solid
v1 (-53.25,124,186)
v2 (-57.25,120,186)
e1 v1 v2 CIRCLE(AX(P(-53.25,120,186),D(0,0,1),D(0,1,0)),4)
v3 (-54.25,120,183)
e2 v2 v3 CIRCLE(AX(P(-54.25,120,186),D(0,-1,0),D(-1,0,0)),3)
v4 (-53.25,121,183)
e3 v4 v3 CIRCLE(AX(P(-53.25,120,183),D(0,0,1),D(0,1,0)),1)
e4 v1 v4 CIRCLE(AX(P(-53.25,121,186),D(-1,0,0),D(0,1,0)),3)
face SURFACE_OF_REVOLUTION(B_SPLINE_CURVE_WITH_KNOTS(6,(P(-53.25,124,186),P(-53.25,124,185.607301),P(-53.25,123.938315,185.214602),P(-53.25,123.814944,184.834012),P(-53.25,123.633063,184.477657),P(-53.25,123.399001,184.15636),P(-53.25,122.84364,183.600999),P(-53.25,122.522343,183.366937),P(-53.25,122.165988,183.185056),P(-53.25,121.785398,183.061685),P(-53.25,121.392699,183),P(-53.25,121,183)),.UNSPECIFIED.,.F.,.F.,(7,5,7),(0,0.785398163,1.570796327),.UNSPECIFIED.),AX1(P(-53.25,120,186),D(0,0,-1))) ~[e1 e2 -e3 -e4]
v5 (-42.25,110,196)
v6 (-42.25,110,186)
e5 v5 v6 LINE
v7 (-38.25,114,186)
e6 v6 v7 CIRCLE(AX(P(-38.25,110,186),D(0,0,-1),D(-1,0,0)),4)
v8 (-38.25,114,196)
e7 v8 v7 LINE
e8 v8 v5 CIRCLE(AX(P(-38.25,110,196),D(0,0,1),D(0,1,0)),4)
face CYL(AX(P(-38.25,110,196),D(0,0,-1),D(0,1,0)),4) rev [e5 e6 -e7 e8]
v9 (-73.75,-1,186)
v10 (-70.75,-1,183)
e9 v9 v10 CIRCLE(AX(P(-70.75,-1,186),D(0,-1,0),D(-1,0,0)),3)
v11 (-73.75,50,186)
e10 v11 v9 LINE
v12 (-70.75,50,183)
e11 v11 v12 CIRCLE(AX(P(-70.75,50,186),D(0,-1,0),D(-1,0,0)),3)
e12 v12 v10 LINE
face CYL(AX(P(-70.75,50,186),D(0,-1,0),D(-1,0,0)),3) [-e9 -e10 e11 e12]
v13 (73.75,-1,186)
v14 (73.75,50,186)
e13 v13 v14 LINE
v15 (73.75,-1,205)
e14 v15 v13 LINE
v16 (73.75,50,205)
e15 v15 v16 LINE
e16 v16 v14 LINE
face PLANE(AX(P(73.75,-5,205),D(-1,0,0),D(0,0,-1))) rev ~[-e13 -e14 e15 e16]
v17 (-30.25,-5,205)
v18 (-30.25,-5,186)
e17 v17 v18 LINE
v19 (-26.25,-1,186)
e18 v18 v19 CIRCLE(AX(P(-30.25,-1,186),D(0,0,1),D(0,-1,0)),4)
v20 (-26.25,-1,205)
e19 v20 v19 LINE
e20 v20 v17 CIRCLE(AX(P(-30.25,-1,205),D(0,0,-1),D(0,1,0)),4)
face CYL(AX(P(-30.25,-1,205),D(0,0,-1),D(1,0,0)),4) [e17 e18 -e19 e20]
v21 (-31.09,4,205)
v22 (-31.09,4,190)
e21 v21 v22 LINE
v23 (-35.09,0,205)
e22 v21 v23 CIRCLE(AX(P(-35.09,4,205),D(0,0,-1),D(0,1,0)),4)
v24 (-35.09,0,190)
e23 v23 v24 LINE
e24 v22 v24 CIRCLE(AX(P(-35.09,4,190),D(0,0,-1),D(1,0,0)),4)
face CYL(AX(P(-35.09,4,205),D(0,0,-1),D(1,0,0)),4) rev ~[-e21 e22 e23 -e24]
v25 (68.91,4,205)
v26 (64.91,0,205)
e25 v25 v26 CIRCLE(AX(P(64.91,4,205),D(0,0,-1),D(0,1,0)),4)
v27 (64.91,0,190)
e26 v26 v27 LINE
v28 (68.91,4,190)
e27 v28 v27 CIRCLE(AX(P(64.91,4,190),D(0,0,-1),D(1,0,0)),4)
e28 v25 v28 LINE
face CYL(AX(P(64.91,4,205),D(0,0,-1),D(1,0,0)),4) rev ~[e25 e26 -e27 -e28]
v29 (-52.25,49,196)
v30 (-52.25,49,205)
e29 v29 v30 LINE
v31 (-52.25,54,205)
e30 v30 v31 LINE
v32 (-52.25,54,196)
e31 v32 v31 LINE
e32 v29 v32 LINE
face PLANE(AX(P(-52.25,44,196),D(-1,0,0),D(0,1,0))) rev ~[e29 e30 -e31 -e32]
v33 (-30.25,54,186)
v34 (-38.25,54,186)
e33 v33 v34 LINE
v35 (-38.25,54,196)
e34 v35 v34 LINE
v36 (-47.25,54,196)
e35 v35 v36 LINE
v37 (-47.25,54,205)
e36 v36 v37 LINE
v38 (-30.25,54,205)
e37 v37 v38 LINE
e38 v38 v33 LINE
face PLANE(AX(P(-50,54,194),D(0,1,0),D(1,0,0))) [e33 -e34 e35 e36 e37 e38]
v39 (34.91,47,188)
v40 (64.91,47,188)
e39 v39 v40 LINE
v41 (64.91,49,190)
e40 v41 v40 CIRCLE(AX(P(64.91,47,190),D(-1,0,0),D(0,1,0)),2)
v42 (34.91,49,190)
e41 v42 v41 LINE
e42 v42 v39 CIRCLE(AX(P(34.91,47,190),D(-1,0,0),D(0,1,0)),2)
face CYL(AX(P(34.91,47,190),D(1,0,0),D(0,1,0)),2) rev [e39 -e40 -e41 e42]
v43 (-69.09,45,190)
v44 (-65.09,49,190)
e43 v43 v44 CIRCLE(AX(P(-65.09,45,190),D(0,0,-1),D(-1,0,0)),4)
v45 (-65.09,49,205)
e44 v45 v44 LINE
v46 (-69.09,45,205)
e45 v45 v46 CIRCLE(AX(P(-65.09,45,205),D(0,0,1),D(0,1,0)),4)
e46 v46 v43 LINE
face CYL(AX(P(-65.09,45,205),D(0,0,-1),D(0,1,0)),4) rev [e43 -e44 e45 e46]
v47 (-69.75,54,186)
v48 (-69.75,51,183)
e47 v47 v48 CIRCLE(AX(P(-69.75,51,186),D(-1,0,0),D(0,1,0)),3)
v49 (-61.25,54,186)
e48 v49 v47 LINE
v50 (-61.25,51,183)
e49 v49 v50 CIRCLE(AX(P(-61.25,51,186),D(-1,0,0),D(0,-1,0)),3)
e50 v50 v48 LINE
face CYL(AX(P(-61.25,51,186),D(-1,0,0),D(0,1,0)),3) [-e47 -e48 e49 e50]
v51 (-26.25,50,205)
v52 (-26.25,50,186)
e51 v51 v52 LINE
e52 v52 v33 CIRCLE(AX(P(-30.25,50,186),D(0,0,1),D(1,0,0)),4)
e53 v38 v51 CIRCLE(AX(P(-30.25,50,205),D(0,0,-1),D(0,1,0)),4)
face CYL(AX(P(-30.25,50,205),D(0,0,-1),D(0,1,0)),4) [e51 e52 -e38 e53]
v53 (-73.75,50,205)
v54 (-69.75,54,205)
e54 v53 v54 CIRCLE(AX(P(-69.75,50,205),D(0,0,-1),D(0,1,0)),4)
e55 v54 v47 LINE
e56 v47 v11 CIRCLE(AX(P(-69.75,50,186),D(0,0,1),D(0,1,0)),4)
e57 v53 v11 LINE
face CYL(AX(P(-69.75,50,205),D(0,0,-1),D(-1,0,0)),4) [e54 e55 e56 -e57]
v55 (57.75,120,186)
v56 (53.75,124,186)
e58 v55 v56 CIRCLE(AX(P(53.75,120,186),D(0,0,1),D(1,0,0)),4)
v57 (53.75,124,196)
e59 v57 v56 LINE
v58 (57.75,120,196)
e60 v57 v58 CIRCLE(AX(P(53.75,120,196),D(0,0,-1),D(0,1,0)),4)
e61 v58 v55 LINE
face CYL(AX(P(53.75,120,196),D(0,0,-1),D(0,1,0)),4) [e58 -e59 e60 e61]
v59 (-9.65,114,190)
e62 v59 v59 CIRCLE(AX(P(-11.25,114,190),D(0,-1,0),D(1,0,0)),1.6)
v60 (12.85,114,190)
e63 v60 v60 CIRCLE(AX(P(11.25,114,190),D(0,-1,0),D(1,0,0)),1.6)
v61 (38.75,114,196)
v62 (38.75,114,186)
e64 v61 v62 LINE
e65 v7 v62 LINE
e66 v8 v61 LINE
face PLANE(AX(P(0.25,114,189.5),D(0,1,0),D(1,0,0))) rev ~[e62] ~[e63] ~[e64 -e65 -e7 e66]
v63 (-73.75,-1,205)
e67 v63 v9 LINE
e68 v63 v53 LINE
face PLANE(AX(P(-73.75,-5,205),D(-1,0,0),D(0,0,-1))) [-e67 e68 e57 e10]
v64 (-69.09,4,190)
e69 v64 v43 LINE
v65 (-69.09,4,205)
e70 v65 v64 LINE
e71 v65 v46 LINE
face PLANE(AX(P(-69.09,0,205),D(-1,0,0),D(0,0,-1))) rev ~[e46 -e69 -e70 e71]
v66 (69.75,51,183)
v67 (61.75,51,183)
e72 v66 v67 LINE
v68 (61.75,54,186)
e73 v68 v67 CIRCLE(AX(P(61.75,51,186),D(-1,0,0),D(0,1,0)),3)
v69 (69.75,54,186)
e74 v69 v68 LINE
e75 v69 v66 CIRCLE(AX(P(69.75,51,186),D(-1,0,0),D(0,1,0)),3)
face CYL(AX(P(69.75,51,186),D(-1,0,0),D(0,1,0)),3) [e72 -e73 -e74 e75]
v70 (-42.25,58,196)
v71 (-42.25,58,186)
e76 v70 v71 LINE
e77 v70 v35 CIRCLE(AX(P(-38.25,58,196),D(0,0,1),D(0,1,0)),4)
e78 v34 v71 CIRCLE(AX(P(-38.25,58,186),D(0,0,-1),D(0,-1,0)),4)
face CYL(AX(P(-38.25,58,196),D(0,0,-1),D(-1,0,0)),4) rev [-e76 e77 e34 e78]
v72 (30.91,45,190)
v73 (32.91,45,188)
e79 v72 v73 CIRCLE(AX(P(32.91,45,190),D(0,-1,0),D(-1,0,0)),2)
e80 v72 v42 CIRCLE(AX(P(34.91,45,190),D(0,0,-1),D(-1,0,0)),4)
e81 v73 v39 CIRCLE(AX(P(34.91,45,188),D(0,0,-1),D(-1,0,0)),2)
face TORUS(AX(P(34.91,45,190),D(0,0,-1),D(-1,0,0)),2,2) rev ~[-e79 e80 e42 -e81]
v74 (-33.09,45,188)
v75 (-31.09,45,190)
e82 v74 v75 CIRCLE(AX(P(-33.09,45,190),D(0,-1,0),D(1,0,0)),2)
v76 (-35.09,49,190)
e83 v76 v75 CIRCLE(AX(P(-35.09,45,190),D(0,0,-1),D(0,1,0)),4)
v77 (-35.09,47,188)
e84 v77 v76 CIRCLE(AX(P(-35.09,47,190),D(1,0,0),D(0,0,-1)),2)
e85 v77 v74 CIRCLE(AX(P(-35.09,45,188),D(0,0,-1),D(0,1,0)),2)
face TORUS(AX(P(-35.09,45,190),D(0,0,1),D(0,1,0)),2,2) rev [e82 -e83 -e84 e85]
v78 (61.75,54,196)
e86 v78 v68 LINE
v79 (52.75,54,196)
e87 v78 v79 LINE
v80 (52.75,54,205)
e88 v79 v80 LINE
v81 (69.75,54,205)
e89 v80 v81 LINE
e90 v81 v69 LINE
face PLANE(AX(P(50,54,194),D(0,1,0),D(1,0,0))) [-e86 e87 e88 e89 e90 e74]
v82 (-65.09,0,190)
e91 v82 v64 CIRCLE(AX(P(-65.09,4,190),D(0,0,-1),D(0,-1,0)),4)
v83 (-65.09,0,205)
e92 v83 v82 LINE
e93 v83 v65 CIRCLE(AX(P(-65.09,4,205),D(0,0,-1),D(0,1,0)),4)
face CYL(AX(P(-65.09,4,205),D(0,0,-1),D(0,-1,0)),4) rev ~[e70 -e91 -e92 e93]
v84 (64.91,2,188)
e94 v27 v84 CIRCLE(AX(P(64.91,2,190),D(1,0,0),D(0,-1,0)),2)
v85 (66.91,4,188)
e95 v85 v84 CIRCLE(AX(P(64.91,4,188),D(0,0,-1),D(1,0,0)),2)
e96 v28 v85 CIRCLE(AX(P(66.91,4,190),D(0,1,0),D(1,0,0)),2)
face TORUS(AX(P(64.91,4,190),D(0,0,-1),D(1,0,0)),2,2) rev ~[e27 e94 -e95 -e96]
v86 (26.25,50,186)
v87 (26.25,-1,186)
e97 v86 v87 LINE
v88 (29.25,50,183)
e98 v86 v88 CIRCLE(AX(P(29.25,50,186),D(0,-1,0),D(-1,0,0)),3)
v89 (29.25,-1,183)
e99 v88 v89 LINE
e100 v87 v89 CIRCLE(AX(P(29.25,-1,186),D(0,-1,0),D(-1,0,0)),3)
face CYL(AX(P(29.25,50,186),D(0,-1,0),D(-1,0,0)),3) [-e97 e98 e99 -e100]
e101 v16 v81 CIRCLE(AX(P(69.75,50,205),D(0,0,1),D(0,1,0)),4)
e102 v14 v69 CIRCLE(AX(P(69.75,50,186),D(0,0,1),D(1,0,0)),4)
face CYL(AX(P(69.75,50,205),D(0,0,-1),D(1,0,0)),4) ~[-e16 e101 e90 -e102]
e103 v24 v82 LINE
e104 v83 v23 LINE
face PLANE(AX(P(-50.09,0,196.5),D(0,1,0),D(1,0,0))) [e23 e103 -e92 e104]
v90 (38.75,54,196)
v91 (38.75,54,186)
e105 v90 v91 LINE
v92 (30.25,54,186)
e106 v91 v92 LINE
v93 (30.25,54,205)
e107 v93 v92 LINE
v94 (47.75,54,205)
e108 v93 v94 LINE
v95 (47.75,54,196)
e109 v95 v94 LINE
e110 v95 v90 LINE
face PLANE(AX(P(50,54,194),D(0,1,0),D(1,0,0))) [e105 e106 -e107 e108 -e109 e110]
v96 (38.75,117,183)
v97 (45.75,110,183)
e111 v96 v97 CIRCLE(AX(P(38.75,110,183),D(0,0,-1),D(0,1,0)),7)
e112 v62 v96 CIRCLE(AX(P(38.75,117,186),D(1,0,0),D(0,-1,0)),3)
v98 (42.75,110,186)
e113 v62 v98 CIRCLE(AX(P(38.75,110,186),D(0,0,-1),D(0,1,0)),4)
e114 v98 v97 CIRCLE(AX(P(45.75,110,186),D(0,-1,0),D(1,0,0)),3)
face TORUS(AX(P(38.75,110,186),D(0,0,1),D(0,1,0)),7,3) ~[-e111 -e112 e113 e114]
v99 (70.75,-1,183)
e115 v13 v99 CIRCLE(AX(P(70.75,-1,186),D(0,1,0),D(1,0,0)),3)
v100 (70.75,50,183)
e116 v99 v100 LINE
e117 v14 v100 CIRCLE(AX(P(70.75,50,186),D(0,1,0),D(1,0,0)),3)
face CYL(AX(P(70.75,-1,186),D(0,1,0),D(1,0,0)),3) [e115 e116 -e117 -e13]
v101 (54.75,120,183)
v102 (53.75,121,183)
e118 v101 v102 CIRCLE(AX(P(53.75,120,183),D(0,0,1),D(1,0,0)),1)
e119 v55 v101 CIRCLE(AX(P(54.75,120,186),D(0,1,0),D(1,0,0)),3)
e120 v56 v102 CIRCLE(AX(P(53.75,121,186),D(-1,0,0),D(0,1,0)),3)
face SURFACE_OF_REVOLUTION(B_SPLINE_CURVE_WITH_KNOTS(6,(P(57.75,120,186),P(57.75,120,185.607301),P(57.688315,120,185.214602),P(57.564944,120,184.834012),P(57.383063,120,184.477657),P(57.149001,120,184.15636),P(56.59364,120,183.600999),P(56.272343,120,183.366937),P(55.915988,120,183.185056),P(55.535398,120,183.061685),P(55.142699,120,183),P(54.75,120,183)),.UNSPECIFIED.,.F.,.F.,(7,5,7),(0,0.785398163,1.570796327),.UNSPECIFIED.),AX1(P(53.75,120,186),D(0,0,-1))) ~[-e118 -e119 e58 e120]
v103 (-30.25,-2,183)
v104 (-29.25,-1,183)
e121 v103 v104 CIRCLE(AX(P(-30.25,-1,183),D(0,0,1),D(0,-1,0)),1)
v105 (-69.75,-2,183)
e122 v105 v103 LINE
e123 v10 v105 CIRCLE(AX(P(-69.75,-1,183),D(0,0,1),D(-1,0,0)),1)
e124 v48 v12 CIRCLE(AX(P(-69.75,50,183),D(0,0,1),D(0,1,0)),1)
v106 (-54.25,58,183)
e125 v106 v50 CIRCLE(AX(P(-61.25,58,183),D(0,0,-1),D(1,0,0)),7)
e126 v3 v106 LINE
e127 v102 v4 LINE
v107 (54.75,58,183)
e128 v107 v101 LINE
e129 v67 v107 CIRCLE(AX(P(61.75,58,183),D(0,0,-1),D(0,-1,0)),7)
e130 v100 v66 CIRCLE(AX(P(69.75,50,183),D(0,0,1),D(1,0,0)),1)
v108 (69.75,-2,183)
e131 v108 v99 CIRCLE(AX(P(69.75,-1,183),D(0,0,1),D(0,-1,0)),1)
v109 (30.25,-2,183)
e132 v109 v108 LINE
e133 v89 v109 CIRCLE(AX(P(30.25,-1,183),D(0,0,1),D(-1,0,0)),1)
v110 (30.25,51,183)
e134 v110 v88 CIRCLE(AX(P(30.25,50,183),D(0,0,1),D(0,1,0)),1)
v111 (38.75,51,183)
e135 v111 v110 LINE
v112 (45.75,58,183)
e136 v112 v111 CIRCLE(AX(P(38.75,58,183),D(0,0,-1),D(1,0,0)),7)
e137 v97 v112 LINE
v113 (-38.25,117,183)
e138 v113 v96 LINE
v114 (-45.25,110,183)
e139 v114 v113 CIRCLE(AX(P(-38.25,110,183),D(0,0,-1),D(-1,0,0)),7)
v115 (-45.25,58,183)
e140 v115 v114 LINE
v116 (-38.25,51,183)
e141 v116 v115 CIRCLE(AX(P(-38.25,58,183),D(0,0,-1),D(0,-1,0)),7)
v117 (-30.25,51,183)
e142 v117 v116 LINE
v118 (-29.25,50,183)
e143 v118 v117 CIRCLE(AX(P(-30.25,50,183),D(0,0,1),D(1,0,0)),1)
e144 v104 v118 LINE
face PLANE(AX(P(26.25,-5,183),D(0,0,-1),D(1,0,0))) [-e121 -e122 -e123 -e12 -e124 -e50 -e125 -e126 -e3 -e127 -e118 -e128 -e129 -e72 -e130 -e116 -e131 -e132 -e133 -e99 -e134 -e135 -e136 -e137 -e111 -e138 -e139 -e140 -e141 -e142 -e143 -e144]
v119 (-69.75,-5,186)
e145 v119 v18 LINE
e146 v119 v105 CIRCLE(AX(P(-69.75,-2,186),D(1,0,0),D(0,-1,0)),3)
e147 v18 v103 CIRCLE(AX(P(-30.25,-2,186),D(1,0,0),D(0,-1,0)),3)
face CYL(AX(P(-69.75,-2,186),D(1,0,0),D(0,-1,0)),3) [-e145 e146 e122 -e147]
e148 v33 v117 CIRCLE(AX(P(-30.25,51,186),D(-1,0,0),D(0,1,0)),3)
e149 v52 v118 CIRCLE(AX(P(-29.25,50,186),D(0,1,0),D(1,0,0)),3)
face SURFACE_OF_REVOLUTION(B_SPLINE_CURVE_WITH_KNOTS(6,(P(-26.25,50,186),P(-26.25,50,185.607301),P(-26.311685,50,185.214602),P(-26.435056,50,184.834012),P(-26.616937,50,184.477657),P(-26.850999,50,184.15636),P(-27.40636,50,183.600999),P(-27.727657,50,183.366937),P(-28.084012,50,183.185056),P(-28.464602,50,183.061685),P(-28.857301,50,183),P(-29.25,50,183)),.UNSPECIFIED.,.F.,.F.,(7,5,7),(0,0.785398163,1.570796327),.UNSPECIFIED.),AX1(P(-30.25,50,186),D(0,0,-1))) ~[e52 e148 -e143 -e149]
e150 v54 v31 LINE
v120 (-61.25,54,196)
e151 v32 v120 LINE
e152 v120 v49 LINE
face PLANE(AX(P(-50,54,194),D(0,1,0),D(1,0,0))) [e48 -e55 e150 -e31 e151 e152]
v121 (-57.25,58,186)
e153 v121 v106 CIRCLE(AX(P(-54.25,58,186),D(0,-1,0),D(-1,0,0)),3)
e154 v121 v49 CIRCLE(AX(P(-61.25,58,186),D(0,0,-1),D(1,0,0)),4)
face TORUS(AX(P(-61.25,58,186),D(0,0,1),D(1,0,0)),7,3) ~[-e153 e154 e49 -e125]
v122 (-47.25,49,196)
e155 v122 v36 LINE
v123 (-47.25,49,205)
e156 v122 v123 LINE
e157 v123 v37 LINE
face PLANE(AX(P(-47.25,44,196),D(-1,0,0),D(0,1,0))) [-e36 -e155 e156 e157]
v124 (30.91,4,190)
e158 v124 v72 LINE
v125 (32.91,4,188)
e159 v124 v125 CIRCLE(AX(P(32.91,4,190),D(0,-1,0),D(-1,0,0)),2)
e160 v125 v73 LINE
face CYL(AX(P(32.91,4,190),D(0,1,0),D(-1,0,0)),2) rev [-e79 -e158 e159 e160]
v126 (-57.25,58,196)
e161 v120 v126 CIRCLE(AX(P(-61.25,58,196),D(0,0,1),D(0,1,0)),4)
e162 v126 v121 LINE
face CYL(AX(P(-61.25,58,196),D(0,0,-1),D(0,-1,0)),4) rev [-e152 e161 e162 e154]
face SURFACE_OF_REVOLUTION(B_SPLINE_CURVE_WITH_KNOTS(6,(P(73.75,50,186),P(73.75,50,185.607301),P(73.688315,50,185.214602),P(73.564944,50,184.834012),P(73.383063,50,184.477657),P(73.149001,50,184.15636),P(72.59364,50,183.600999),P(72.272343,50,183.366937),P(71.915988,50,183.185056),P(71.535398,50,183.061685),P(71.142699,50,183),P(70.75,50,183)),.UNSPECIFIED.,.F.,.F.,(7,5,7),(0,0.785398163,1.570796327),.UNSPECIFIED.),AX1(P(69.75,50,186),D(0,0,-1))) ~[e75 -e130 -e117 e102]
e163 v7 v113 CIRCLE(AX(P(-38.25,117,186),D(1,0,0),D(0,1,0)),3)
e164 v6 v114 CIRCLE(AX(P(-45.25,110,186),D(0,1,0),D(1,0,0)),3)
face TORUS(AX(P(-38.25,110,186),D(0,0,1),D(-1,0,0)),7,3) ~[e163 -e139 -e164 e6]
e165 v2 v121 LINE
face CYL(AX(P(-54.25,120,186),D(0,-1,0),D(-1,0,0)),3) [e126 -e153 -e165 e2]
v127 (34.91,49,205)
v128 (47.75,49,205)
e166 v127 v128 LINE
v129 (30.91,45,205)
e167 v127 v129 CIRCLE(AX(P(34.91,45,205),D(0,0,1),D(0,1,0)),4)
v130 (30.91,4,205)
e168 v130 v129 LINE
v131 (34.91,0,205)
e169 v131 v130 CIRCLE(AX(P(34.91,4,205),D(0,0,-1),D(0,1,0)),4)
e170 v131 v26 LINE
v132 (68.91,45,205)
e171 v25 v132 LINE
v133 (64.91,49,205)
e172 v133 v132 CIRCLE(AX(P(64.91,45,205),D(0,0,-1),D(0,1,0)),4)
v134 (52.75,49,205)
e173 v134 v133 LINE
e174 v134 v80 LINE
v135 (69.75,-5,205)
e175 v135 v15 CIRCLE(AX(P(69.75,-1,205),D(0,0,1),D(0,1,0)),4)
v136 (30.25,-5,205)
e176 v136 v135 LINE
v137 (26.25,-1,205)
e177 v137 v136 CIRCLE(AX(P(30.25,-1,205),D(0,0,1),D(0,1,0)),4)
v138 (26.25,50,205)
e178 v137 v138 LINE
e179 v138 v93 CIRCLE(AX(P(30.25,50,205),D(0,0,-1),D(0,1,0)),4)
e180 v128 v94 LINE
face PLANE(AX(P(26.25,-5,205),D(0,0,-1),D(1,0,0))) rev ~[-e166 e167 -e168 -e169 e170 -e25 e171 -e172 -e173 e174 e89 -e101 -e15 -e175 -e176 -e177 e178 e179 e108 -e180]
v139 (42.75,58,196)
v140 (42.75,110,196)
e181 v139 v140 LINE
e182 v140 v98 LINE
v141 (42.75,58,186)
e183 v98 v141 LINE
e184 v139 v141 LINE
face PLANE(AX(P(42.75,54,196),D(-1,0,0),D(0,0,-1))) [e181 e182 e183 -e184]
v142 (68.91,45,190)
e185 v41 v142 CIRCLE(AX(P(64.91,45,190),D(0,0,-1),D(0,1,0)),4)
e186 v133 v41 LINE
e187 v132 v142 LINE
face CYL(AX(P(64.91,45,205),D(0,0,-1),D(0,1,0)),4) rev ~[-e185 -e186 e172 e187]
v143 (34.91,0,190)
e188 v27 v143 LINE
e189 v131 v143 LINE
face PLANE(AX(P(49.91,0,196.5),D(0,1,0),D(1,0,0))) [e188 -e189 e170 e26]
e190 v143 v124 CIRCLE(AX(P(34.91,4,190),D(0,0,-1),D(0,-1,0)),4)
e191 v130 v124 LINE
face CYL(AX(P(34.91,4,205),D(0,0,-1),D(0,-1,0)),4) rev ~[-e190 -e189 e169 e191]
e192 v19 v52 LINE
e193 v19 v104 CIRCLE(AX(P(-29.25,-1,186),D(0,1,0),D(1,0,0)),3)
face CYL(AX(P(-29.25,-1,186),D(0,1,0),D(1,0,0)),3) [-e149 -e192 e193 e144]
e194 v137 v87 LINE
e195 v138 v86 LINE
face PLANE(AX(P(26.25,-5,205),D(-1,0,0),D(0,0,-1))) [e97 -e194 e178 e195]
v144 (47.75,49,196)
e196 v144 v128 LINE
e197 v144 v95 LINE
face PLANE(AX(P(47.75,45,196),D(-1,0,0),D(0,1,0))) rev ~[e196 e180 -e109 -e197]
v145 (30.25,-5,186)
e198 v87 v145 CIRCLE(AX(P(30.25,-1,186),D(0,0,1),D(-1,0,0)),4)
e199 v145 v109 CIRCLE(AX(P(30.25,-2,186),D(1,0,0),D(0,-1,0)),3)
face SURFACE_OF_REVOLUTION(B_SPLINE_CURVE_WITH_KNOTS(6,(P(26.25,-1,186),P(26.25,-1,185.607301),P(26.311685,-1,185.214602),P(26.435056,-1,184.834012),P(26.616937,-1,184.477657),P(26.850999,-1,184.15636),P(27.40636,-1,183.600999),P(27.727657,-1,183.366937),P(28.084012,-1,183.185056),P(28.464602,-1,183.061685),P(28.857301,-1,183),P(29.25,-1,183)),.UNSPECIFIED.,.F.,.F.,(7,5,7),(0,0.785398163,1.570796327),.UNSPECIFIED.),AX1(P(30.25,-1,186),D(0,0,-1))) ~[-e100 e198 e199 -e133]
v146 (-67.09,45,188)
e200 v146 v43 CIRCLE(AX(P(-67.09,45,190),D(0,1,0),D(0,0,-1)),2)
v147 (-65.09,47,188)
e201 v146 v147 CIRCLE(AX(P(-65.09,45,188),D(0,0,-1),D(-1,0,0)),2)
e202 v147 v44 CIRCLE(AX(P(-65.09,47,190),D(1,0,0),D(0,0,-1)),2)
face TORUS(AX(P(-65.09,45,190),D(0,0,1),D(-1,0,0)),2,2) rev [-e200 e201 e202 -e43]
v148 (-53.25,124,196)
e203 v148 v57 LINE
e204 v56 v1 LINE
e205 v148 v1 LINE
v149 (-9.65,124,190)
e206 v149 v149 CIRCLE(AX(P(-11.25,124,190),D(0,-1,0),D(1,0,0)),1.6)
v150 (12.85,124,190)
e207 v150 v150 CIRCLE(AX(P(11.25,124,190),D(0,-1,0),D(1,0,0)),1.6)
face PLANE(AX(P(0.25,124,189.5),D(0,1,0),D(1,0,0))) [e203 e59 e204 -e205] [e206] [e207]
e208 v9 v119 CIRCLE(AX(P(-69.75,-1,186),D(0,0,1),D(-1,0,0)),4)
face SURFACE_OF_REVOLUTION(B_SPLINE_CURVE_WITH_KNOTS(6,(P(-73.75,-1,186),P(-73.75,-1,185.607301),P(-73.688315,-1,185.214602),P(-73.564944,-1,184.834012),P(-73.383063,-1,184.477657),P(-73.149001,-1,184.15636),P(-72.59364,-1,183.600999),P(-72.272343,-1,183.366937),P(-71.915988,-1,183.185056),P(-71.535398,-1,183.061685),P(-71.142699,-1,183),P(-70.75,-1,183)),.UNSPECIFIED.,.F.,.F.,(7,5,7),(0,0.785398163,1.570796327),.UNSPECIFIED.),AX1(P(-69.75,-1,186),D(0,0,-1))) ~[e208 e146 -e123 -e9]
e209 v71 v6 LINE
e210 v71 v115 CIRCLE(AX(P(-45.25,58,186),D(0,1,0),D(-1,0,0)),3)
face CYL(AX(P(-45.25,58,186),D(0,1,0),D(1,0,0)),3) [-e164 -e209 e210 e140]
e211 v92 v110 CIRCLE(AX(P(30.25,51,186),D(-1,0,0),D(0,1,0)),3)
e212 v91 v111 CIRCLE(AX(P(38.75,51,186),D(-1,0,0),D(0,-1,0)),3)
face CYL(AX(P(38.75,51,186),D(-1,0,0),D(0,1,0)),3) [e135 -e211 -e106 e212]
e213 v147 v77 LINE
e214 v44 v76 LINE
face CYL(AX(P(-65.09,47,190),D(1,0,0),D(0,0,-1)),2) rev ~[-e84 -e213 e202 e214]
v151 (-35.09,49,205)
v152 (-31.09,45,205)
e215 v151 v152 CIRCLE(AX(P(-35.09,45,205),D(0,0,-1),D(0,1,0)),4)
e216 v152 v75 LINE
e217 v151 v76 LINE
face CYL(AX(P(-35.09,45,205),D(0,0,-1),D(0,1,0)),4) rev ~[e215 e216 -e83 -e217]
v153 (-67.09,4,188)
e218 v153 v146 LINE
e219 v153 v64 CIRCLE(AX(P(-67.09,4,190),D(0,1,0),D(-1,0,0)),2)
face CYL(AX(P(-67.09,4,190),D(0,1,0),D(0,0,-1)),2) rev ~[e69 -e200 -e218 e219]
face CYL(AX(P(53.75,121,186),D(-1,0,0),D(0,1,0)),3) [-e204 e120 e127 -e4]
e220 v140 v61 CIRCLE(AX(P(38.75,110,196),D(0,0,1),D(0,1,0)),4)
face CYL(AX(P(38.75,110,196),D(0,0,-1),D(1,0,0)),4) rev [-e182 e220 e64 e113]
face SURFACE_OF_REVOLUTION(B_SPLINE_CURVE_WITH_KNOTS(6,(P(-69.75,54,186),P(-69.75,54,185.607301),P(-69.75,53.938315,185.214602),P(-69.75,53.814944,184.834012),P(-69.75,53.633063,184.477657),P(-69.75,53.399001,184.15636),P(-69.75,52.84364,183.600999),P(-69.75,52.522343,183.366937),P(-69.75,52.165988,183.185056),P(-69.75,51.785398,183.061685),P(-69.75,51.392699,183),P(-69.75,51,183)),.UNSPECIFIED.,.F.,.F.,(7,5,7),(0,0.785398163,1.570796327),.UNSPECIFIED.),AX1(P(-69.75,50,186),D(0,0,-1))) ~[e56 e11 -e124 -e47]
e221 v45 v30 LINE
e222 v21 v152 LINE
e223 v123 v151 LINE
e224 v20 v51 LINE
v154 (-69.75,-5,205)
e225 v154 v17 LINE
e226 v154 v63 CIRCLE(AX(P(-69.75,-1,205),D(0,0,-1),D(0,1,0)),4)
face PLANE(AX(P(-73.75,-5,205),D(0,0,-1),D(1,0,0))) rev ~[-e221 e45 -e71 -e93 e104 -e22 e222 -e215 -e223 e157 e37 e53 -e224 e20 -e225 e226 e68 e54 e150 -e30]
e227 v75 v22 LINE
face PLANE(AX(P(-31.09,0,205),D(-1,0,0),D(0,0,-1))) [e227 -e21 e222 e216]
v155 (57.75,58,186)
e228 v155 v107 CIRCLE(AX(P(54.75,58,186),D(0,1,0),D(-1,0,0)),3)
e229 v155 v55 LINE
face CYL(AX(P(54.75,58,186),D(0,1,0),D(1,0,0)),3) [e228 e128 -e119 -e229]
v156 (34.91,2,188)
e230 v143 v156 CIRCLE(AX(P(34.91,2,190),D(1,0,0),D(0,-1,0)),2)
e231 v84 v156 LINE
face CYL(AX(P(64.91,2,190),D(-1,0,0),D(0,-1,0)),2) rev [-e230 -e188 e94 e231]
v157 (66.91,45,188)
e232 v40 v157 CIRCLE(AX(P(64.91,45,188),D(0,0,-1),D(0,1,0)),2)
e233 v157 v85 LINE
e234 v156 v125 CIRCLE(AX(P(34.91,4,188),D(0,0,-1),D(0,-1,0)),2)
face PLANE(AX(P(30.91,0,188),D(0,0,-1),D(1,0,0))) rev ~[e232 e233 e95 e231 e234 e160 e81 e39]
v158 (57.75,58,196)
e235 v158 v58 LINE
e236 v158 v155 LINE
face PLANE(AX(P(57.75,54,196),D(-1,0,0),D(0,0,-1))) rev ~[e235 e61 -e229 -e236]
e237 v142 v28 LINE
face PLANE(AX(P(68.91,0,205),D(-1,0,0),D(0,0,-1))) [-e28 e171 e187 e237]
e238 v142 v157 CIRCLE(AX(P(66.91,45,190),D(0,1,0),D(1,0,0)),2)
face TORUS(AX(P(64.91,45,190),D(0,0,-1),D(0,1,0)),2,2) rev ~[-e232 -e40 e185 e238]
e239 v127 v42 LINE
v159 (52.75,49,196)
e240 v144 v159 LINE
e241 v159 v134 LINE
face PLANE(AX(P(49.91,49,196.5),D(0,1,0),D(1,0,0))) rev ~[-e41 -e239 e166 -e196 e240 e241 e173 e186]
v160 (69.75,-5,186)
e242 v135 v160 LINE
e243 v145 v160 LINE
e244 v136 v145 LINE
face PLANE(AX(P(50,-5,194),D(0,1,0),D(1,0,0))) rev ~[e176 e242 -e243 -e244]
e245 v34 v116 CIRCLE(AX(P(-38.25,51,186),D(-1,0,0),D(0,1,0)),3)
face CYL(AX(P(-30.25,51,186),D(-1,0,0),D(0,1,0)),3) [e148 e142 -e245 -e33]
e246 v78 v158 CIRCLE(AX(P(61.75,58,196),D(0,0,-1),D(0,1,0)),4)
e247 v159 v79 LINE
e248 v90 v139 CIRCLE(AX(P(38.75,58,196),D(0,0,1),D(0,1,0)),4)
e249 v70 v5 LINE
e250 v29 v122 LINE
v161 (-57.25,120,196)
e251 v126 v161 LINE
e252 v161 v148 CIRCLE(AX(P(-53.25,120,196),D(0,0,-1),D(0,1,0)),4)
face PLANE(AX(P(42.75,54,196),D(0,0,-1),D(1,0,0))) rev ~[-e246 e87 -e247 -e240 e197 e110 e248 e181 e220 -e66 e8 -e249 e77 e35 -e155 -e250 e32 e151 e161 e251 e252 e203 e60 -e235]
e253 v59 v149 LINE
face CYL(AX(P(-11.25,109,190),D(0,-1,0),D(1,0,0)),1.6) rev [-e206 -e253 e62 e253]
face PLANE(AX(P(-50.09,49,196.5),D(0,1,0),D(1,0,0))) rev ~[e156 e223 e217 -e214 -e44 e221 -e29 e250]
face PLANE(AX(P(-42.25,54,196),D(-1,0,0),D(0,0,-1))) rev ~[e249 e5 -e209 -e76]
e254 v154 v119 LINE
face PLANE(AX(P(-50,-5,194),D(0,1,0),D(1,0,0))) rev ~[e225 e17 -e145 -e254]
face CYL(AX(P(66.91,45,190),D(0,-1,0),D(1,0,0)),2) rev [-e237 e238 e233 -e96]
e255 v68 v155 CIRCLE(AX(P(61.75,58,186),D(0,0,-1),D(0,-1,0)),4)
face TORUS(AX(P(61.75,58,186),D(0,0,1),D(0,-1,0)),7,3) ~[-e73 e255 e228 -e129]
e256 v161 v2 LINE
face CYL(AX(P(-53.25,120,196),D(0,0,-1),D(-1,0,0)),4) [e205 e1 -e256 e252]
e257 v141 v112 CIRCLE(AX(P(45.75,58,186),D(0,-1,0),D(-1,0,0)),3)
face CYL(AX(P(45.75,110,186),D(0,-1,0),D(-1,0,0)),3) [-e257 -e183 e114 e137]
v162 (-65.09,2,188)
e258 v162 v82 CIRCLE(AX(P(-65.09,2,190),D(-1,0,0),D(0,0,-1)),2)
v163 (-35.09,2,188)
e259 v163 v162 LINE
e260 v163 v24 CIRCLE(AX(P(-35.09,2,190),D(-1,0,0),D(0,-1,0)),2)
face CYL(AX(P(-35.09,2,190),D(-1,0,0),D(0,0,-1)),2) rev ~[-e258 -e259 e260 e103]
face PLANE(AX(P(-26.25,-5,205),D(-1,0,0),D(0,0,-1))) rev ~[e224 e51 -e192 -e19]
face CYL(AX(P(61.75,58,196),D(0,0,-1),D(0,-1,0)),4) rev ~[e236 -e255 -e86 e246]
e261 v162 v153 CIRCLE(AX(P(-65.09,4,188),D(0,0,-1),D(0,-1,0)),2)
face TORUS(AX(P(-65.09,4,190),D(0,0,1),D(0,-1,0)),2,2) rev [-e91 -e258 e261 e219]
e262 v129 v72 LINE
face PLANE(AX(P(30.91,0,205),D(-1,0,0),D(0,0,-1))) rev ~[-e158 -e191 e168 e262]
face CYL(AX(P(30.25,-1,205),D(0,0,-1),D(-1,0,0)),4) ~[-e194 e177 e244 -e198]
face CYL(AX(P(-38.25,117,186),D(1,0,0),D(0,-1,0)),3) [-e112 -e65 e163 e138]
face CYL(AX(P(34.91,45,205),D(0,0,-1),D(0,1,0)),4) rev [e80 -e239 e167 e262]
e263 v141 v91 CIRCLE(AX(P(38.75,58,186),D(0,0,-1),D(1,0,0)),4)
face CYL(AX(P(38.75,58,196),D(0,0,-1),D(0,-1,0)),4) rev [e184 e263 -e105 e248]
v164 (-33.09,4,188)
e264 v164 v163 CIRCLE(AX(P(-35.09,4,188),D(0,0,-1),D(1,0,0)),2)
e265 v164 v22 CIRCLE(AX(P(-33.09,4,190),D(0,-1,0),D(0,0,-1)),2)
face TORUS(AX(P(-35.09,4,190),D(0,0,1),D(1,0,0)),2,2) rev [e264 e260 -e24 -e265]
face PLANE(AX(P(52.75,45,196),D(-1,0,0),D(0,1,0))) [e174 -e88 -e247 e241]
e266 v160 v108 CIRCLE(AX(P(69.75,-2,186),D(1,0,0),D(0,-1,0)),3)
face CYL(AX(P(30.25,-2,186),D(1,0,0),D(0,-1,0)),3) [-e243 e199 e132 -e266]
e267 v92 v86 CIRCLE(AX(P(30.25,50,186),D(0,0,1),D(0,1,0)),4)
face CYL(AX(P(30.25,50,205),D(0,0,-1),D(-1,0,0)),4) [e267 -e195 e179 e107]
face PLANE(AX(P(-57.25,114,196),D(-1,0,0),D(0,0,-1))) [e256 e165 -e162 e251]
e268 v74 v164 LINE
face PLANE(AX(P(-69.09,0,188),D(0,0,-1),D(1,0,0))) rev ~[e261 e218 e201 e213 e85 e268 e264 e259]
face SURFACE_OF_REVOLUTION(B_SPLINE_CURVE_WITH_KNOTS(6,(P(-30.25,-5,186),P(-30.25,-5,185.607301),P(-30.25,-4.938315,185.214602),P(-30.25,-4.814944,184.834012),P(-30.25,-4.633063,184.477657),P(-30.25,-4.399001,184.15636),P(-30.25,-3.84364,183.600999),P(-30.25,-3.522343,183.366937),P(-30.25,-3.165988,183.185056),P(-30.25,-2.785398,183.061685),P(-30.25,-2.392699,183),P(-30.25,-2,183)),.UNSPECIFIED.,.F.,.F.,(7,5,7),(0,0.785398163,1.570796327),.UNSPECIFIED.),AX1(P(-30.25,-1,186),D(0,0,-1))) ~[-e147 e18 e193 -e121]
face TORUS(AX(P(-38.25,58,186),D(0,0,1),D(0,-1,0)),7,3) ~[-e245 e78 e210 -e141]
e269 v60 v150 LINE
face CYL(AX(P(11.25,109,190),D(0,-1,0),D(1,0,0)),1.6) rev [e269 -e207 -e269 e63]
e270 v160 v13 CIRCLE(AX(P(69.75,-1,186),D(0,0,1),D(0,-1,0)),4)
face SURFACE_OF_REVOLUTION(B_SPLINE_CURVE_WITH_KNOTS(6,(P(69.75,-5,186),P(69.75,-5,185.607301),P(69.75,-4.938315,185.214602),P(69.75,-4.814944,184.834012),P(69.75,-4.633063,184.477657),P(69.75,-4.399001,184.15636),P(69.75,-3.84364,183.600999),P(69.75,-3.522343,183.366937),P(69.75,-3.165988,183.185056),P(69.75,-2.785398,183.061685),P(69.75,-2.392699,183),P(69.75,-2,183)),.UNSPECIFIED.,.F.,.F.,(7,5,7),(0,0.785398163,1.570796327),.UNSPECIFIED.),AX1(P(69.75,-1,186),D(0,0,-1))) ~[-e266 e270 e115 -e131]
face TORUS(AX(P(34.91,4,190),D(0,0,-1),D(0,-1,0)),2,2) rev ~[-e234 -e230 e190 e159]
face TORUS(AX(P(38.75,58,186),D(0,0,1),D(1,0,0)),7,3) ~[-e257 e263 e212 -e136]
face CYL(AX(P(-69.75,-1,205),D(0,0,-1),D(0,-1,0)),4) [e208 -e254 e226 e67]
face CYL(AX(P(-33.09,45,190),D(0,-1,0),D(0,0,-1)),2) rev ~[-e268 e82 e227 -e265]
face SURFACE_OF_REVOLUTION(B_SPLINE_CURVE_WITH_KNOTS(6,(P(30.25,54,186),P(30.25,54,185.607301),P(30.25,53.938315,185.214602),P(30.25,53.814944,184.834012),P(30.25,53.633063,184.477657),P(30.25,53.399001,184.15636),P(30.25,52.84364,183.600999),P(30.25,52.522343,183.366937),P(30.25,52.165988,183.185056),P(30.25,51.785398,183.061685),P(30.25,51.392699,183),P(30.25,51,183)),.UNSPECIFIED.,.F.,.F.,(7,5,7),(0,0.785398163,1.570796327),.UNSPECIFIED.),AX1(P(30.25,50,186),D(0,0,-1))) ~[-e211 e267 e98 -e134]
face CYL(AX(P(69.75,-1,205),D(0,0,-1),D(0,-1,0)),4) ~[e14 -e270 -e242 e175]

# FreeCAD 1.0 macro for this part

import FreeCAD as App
import Part
import Sketcher

V = App.Vector
Q = App.Units.Quantity


def edges_at(feature, points):
    """Names of the edges that pass closest to the given points."""
    edges = feature.Shape.Edges
    near = lambda p: min(range(len(edges)), key=lambda i: edges[i].distToShape(Part.Vertex(*p))[0])
    return sorted({f"Edge{near(p) + 1}" for p in points})

doc = App.newDocument("Part")
body = doc.addObject("PartDesign::Body", "Body")
body.AllowCompound = True

sketch1 = body.newObject("Sketcher::SketchObject", "Sketch")
sketch1.AttachmentSupport = (doc.getObject("XZ_Plane"), [""])
sketch1.MapMode = "FlatFace"
sketch1.AttachmentOffset = App.Placement(V(0, 0, 48), App.Rotation())
sketch1.addGeometry(Part.LineSegment(V(16, 9, 0), V(16, -1, 0)), False)
sketch1.addGeometry(Part.LineSegment(V(16, -1, 0), V(22, -1, 0)), False)
sketch1.addGeometry(Part.LineSegment(V(22, -1, 0), V(22, 9, 0)), False)
sketch1.addGeometry(Part.LineSegment(V(22, 9, 0), V(16, 9, 0)), False)
sketch1.addGeometry(Part.LineSegment(V(116, 9, 0), V(116, 0, 0)), False)
sketch1.addGeometry(Part.LineSegment(V(116, 0, 0), V(122, 0, 0)), False)
sketch1.addGeometry(Part.LineSegment(V(122, 0, 0), V(122, 9, 0)), False)
sketch1.addGeometry(Part.LineSegment(V(122, 9, 0), V(116, 9, 0)), False)
sketch1.addConstraint(Sketcher.Constraint("Coincident", 0, 2, 1, 1))
sketch1.addConstraint(Sketcher.Constraint("Coincident", 1, 2, 2, 1))
sketch1.addConstraint(Sketcher.Constraint("Coincident", 2, 2, 3, 1))
sketch1.addConstraint(Sketcher.Constraint("Coincident", 3, 2, 0, 1))
sketch1.addConstraint(Sketcher.Constraint("Coincident", 4, 2, 5, 1))
sketch1.addConstraint(Sketcher.Constraint("Coincident", 5, 2, 6, 1))
sketch1.addConstraint(Sketcher.Constraint("Coincident", 6, 2, 7, 1))
sketch1.addConstraint(Sketcher.Constraint("Coincident", 7, 2, 4, 1))
sketch1.addConstraint(Sketcher.Constraint("Vertical", 0))
sketch1.addConstraint(Sketcher.Constraint("Horizontal", 1))
sketch1.addConstraint(Sketcher.Constraint("Vertical", 2))
sketch1.addConstraint(Sketcher.Constraint("Horizontal", 3))
sketch1.addConstraint(Sketcher.Constraint("Vertical", 4))
sketch1.addConstraint(Sketcher.Constraint("Horizontal", 5))
sketch1.addConstraint(Sketcher.Constraint("Vertical", 6))
sketch1.addConstraint(Sketcher.Constraint("Horizontal", 7))
sketch1.addConstraint(Sketcher.Constraint("PointOnObject", 4, 2, -1))
sketch1.addConstraint(Sketcher.Constraint("Horizontal", 3, 2, 6, 2))
sketch1.addConstraint(Sketcher.Constraint("Equal", 3, 5))
sketch1.addConstraint(Sketcher.Constraint("DistanceX", 1, 1, 1, 2, Q("5 mm")))
sketch1.addConstraint(Sketcher.Constraint("DistanceY", 0, 2, 0, 1, Q("10 mm")))
sketch1.addConstraint(Sketcher.Constraint("DistanceY", 4, 2, 4, 1, Q("9 mm")))
sketch1.addConstraint(Sketcher.Constraint("DistanceX", 1, 2, 4, 2, Q("95 mm")))
sketch1.addConstraint(Sketcher.Constraint("DistanceX", -1, 1, 0, 2, Q("16.5 mm")))
pad1 = body.newObject("PartDesign::Pad", "Pad")
pad1.Profile = sketch1
pad1.Length = 10
body2 = doc.addObject("PartDesign::Body", "Body001")
body2.AllowCompound = True
doc.recompute()

body.Placement = App.Placement(V(0, 57, 45), App.Rotation(V(0, 0, 1), 0))
boolean = body2.newObject("PartDesign::Boolean", "Boolean")
boolean.Type = "Fuse"
boolean.addObjects([body])
body3 = doc.addObject("PartDesign::Body", "Body002")

sketch2 = body3.newObject("Sketcher::SketchObject", "Sketch001")
sketch2.AttachmentSupport = (doc.getObject("XY_Plane002"), [""])
sketch2.MapMode = "FlatFace"
sketch2.AttachmentOffset = App.Placement(V(0, 0, 109), App.Rotation())
sketch2.addGeometry(Part.Circle(V(80, 15, 0), V(0, 0, 1), 1.6), False)
sketch2.addConstraint(Sketcher.Constraint("Diameter", 0, Q("3.2 mm")))
sketch2.addConstraint(Sketcher.Constraint("DistanceX", -1, 1, 0, 3, Q("80 mm")))
sketch2.addConstraint(Sketcher.Constraint("DistanceY", -1, 1, 0, 3, Q("15 mm")))
pad2 = body3.newObject("PartDesign::Pad", "Pad001")
pad2.Profile = sketch2
pad2.Length = 20
body4 = doc.addObject("PartDesign::Body", "Body003")

sketch3 = body4.newObject("Sketcher::SketchObject", "Sketch002")
sketch3.AttachmentSupport = (doc.getObject("XY_Plane003"), [""])
sketch3.MapMode = "FlatFace"
sketch3.AttachmentOffset = App.Placement(V(0, 0, 109), App.Rotation())
sketch3.addGeometry(Part.Circle(V(57.5, 32, 0), V(0, 0, 1), 1.6), False)
sketch3.addConstraint(Sketcher.Constraint("Diameter", 0, Q("3.2 mm")))
sketch3.addConstraint(Sketcher.Constraint("DistanceY", -1, 1, 0, 3, Q("32 mm")))
sketch3.addConstraint(Sketcher.Constraint("DistanceX", -1, 1, 0, 3, Q("57.5 mm")))
pad3 = body4.newObject("PartDesign::Pad", "Pad002")
pad3.Profile = sketch3
pad3.Length = 20
body5 = doc.addObject("PartDesign::Body", "Body004")

sketch4 = body5.newObject("Sketcher::SketchObject", "Sketch003")
sketch4.AttachmentSupport = (doc.getObject("XY_Plane004"), [""])
sketch4.MapMode = "FlatFace"
sketch4.AttachmentOffset = App.Placement(V(0, 0, 109), App.Rotation())
sketch4.addGeometry(Part.Circle(V(80, 32, 0), V(0, 0, 1), 1.6), False)
sketch4.addConstraint(Sketcher.Constraint("Diameter", 0, Q("3.2 mm")))
sketch4.addConstraint(Sketcher.Constraint("DistanceX", -1, 1, 0, 3, Q("80 mm")))
sketch4.addConstraint(Sketcher.Constraint("DistanceY", -1, 1, 0, 3, Q("32 mm")))
pad4 = body5.newObject("PartDesign::Pad", "Pad003")
pad4.Profile = sketch4
pad4.Length = 20
body6 = doc.addObject("PartDesign::Body", "Body005")
body6.AllowCompound = True

sketch5 = body6.newObject("Sketcher::SketchObject", "Sketch004")
sketch5.AttachmentSupport = (doc.getObject("XY_Plane005"), [""])
sketch5.MapMode = "FlatFace"
sketch5.AttachmentOffset = App.Placement(V(0, 0, 109), App.Rotation())
sketch5.addGeometry(Part.Circle(V(57.5, 15, 0), V(0, 0, 1), 1.6), False)
sketch5.addConstraint(Sketcher.Constraint("Diameter", 0, Q("3.2 mm")))
sketch5.addConstraint(Sketcher.Constraint("DistanceY", -1, 1, 0, 3, Q("15 mm")))
sketch5.addConstraint(Sketcher.Constraint("DistanceX", -1, 1, 0, 3, Q("57.5 mm")))
pad5 = body6.newObject("PartDesign::Pad", "Pad004")
pad5.Profile = sketch5
pad5.Length = 20
doc.recompute()

boolean2 = body6.newObject("PartDesign::Boolean", "Boolean001")
boolean2.Type = "Fuse"
boolean2.addObjects([body3])
doc.recompute()

boolean3 = body6.newObject("PartDesign::Boolean", "Boolean002")
boolean3.Type = "Fuse"
boolean3.addObjects([body4])
doc.recompute()

boolean4 = body6.newObject("PartDesign::Boolean", "Boolean003")
boolean4.Type = "Fuse"
boolean4.addObjects([body5])
body7 = doc.addObject("PartDesign::Body", "Body006")

sketch6 = body7.newObject("Sketcher::SketchObject", "Sketch005")
sketch6.AttachmentSupport = (doc.getObject("XY_Plane006"), [""])
sketch6.MapMode = "FlatFace"
sketch6.addGeometry(Part.LineSegment(V(0, 17, 0), V(0, 0, 0)), False)
sketch6.addGeometry(Part.LineSegment(V(0, 0, 0), V(38, 0, 0)), False)
sketch6.addGeometry(Part.LineSegment(V(38, 0, 0), V(38, 17, 0)), False)
sketch6.addGeometry(Part.LineSegment(V(38, 17, 0), V(0, 17, 0)), False)
sketch6.addConstraint(Sketcher.Constraint("Coincident", 0, 2, 1, 1))
sketch6.addConstraint(Sketcher.Constraint("Coincident", 1, 2, 2, 1))
sketch6.addConstraint(Sketcher.Constraint("Coincident", 2, 2, 3, 1))
sketch6.addConstraint(Sketcher.Constraint("Coincident", 3, 2, 0, 1))
sketch6.addConstraint(Sketcher.Constraint("Vertical", 0))
sketch6.addConstraint(Sketcher.Constraint("Horizontal", 1))
sketch6.addConstraint(Sketcher.Constraint("Vertical", 2))
sketch6.addConstraint(Sketcher.Constraint("Horizontal", 3))
sketch6.addConstraint(Sketcher.Constraint("PointOnObject", 0, 2, -1))
sketch6.addConstraint(Sketcher.Constraint("DistanceX", 1, 1, 1, 2, Q("38 mm")))
sketch6.addConstraint(Sketcher.Constraint("DistanceY", 0, 2, 0, 1, Q("17 mm")))
sketch6.addConstraint(Sketcher.Constraint("DistanceX", 0, 2, -1, 1, Q("0.34 mm")))
pad6 = body7.newObject("PartDesign::Pad", "Pad005")
pad6.Profile = sketch6
pad6.Length = 49
body8 = doc.addObject("PartDesign::Body", "Body007")

sketch7 = body8.newObject("Sketcher::SketchObject", "Sketch006")
sketch7.AttachmentSupport = (doc.getObject("XY_Plane007"), [""])
sketch7.MapMode = "FlatFace"
sketch7.AttachmentOffset = App.Placement(V(0, 0, -5), App.Rotation())
sketch7.addGeometry(Part.LineSegment(V(-5, 22, 0), V(-5, 0, 0)), False)
sketch7.addGeometry(Part.LineSegment(V(-5, 0, 0), V(42, 0, 0)), False)
sketch7.addGeometry(Part.LineSegment(V(42, 0, 0), V(42, 22, 0)), False)
sketch7.addGeometry(Part.LineSegment(V(42, 22, 0), V(-5, 22, 0)), False)
sketch7.addConstraint(Sketcher.Constraint("Coincident", 0, 2, 1, 1))
sketch7.addConstraint(Sketcher.Constraint("Coincident", 1, 2, 2, 1))
sketch7.addConstraint(Sketcher.Constraint("Coincident", 2, 2, 3, 1))
sketch7.addConstraint(Sketcher.Constraint("Coincident", 3, 2, 0, 1))
sketch7.addConstraint(Sketcher.Constraint("Vertical", 0))
sketch7.addConstraint(Sketcher.Constraint("Horizontal", 1))
sketch7.addConstraint(Sketcher.Constraint("Vertical", 2))
sketch7.addConstraint(Sketcher.Constraint("Horizontal", 3))
sketch7.addConstraint(Sketcher.Constraint("PointOnObject", 0, 2, -1))
sketch7.addConstraint(Sketcher.Constraint("DistanceY", 0, 2, 0, 1, Q("22 mm")))
sketch7.addConstraint(Sketcher.Constraint("DistanceX", 1, 1, 1, 2, Q("47.5 mm")))
sketch7.addConstraint(Sketcher.Constraint("DistanceX", 0, 2, -1, 1, Q("5 mm")))
pad7 = body8.newObject("PartDesign::Pad", "Pad006")
pad7.Profile = sketch7
pad7.Length = 59
doc.recompute()

boolean5 = body8.newObject("PartDesign::Boolean", "Boolean004")
boolean5.Type = "Cut"
boolean5.addObjects([body7])
body9 = doc.addObject("PartDesign::Body", "Body008")

sketch8 = body9.newObject("Sketcher::SketchObject", "Sketch007")
sketch8.AttachmentSupport = (doc.getObject("XY_Plane008"), [""])
sketch8.MapMode = "FlatFace"
sketch8.addGeometry(Part.LineSegment(V(0, 17, 0), V(0, 0, 0)), False)
sketch8.addGeometry(Part.LineSegment(V(0, 0, 0), V(38, 0, 0)), False)
sketch8.addGeometry(Part.LineSegment(V(38, 0, 0), V(38, 17, 0)), False)
sketch8.addGeometry(Part.LineSegment(V(38, 17, 0), V(0, 17, 0)), False)
sketch8.addConstraint(Sketcher.Constraint("Coincident", 0, 2, 1, 1))
sketch8.addConstraint(Sketcher.Constraint("Coincident", 1, 2, 2, 1))
sketch8.addConstraint(Sketcher.Constraint("Coincident", 2, 2, 3, 1))
sketch8.addConstraint(Sketcher.Constraint("Coincident", 3, 2, 0, 1))
sketch8.addConstraint(Sketcher.Constraint("Vertical", 0))
sketch8.addConstraint(Sketcher.Constraint("Horizontal", 1))
sketch8.addConstraint(Sketcher.Constraint("Vertical", 2))
sketch8.addConstraint(Sketcher.Constraint("Horizontal", 3))
sketch8.addConstraint(Sketcher.Constraint("PointOnObject", 0, 2, -1))
sketch8.addConstraint(Sketcher.Constraint("DistanceX", 1, 1, 1, 2, Q("38 mm")))
sketch8.addConstraint(Sketcher.Constraint("DistanceY", 0, 2, 0, 1, Q("17 mm")))
sketch8.addConstraint(Sketcher.Constraint("DistanceX", 0, 2, -1, 1, Q("0.34 mm")))
pad8 = body9.newObject("PartDesign::Pad", "Pad007")
pad8.Profile = sketch8
pad8.Length = 49
body10 = doc.addObject("PartDesign::Body", "Body009")

sketch9 = body10.newObject("Sketcher::SketchObject", "Sketch008")
sketch9.AttachmentSupport = (doc.getObject("XY_Plane009"), [""])
sketch9.MapMode = "FlatFace"
sketch9.AttachmentOffset = App.Placement(V(0, 0, -5), App.Rotation())
sketch9.addGeometry(Part.LineSegment(V(-5, 22, 0), V(-5, 0, 0)), False)
sketch9.addGeometry(Part.LineSegment(V(-5, 0, 0), V(42, 0, 0)), False)
sketch9.addGeometry(Part.LineSegment(V(42, 0, 0), V(42, 22, 0)), False)
sketch9.addGeometry(Part.LineSegment(V(42, 22, 0), V(-5, 22, 0)), False)
sketch9.addConstraint(Sketcher.Constraint("Coincident", 0, 2, 1, 1))
sketch9.addConstraint(Sketcher.Constraint("Coincident", 1, 2, 2, 1))
sketch9.addConstraint(Sketcher.Constraint("Coincident", 2, 2, 3, 1))
sketch9.addConstraint(Sketcher.Constraint("Coincident", 3, 2, 0, 1))
sketch9.addConstraint(Sketcher.Constraint("Vertical", 0))
sketch9.addConstraint(Sketcher.Constraint("Horizontal", 1))
sketch9.addConstraint(Sketcher.Constraint("Vertical", 2))
sketch9.addConstraint(Sketcher.Constraint("Horizontal", 3))
sketch9.addConstraint(Sketcher.Constraint("PointOnObject", 0, 2, -1))
sketch9.addConstraint(Sketcher.Constraint("DistanceY", 0, 2, 0, 1, Q("22 mm")))
sketch9.addConstraint(Sketcher.Constraint("DistanceX", 1, 1, 1, 2, Q("47.5 mm")))
sketch9.addConstraint(Sketcher.Constraint("DistanceX", 0, 2, -1, 1, Q("5 mm")))
pad9 = body10.newObject("PartDesign::Pad", "Pad008")
pad9.Profile = sketch9
pad9.Length = 59
doc.recompute()

boolean6 = body10.newObject("PartDesign::Boolean", "Boolean005")
boolean6.Type = "Cut"
boolean6.addObjects([body9])
body11 = doc.addObject("PartDesign::Body", "Body010")
doc.recompute()

body10.Placement = App.Placement(V(100, 0, 0), App.Rotation(V(0, 0, 1), 0))
boolean7 = body11.newObject("PartDesign::Boolean", "Boolean006")
boolean7.Type = "Fuse"
boolean7.addObjects([body10])
body12 = doc.addObject("PartDesign::Body", "Body011")

sketch10 = body12.newObject("Sketcher::SketchObject", "Sketch009")
sketch10.AttachmentSupport = (doc.getObject("XY_Plane011"), [""])
sketch10.MapMode = "FlatFace"
sketch10.AttachmentOffset = App.Placement(V(0, 0, 114), App.Rotation())
sketch10.addGeometry(Part.LineSegment(V(12, 22, 0), V(12, 9, 0)), False)
sketch10.addGeometry(Part.LineSegment(V(12, 9, 0), V(126, 9, 0)), False)
sketch10.addGeometry(Part.LineSegment(V(126, 9, 0), V(126, 22, 0)), False)
sketch10.addGeometry(Part.LineSegment(V(126, 22, 0), V(12, 22, 0)), False)
sketch10.addConstraint(Sketcher.Constraint("Coincident", 0, 2, 1, 1))
sketch10.addConstraint(Sketcher.Constraint("Coincident", 1, 2, 2, 1))
sketch10.addConstraint(Sketcher.Constraint("Coincident", 2, 2, 3, 1))
sketch10.addConstraint(Sketcher.Constraint("Coincident", 3, 2, 0, 1))
sketch10.addConstraint(Sketcher.Constraint("Vertical", 0))
sketch10.addConstraint(Sketcher.Constraint("Horizontal", 1))
sketch10.addConstraint(Sketcher.Constraint("Vertical", 2))
sketch10.addConstraint(Sketcher.Constraint("Horizontal", 3))
sketch10.addConstraint(Sketcher.Constraint("DistanceX", 1, 1, 1, 2, Q("115 mm")))
sketch10.addConstraint(Sketcher.Constraint("DistanceY", 0, 2, 0, 1, Q("13 mm")))
sketch10.addConstraint(Sketcher.Constraint("DistanceY", -1, 1, 0, 2, Q("9 mm")))
sketch10.addConstraint(Sketcher.Constraint("DistanceX", -1, 1, 0, 2, Q("11.5 mm")))
pad10 = body12.newObject("PartDesign::Pad", "Pad009")
pad10.Profile = sketch10
pad10.Length = 10
body13 = doc.addObject("PartDesign::Body", "Body012")

sketch11 = body13.newObject("Sketcher::SketchObject", "Sketch010")
sketch11.AttachmentSupport = (doc.getObject("XY_Plane012"), [""])
sketch11.MapMode = "FlatFace"
sketch11.AttachmentOffset = App.Placement(V(0, 0, 54), App.Rotation())
sketch11.addGeometry(Part.LineSegment(V(112, 22, 0), V(112, 9, 0)), False)
sketch11.addGeometry(Part.LineSegment(V(112, 9, 0), V(126, 9, 0)), False)
sketch11.addGeometry(Part.LineSegment(V(126, 9, 0), V(126, 22, 0)), False)
sketch11.addGeometry(Part.LineSegment(V(126, 22, 0), V(112, 22, 0)), False)
sketch11.addConstraint(Sketcher.Constraint("Coincident", 0, 2, 1, 1))
sketch11.addConstraint(Sketcher.Constraint("Coincident", 1, 2, 2, 1))
sketch11.addConstraint(Sketcher.Constraint("Coincident", 2, 2, 3, 1))
sketch11.addConstraint(Sketcher.Constraint("Coincident", 3, 2, 0, 1))
sketch11.addConstraint(Sketcher.Constraint("Vertical", 0))
sketch11.addConstraint(Sketcher.Constraint("Horizontal", 1))
sketch11.addConstraint(Sketcher.Constraint("Vertical", 2))
sketch11.addConstraint(Sketcher.Constraint("Horizontal", 3))
sketch11.addConstraint(Sketcher.Constraint("DistanceX", 1, 1, 1, 2, Q("15 mm")))
sketch11.addConstraint(Sketcher.Constraint("DistanceY", 0, 2, 0, 1, Q("13 mm")))
sketch11.addConstraint(Sketcher.Constraint("DistanceY", -1, 1, 0, 2, Q("9 mm")))
sketch11.addConstraint(Sketcher.Constraint("DistanceX", -1, 1, 0, 2, Q("111.5 mm")))
pad11 = body13.newObject("PartDesign::Pad", "Pad010")
pad11.Profile = sketch11
pad11.Length = 60
body14 = doc.addObject("PartDesign::Body", "Body013")

sketch12 = body14.newObject("Sketcher::SketchObject", "Sketch011")
sketch12.AttachmentSupport = (doc.getObject("XY_Plane013"), [""])
sketch12.MapMode = "FlatFace"
sketch12.AttachmentOffset = App.Placement(V(0, 0, 54), App.Rotation())
sketch12.addGeometry(Part.LineSegment(V(12, 22, 0), V(12, 9, 0)), False)
sketch12.addGeometry(Part.LineSegment(V(12, 9, 0), V(26, 9, 0)), False)
sketch12.addGeometry(Part.LineSegment(V(26, 9, 0), V(26, 22, 0)), False)
sketch12.addGeometry(Part.LineSegment(V(26, 22, 0), V(12, 22, 0)), False)
sketch12.addConstraint(Sketcher.Constraint("Coincident", 0, 2, 1, 1))
sketch12.addConstraint(Sketcher.Constraint("Coincident", 1, 2, 2, 1))
sketch12.addConstraint(Sketcher.Constraint("Coincident", 2, 2, 3, 1))
sketch12.addConstraint(Sketcher.Constraint("Coincident", 3, 2, 0, 1))
sketch12.addConstraint(Sketcher.Constraint("Vertical", 0))
sketch12.addConstraint(Sketcher.Constraint("Horizontal", 1))
sketch12.addConstraint(Sketcher.Constraint("Vertical", 2))
sketch12.addConstraint(Sketcher.Constraint("Horizontal", 3))
sketch12.addConstraint(Sketcher.Constraint("DistanceX", 1, 1, 1, 2, Q("15 mm")))
sketch12.addConstraint(Sketcher.Constraint("DistanceY", 0, 2, 0, 1, Q("13 mm")))
sketch12.addConstraint(Sketcher.Constraint("DistanceY", -1, 1, 0, 2, Q("9 mm")))
sketch12.addConstraint(Sketcher.Constraint("DistanceX", -1, 1, 0, 2, Q("11.5 mm")))
pad12 = body14.newObject("PartDesign::Pad", "Pad011")
pad12.Profile = sketch12
pad12.Length = 60
doc.recompute()

boolean8 = body14.newObject("PartDesign::Boolean", "Boolean007")
boolean8.Type = "Fuse"
boolean8.addObjects([body12])
doc.recompute()

boolean9 = body14.newObject("PartDesign::Boolean", "Boolean008")
boolean9.Type = "Fuse"
boolean9.addObjects([body13])
doc.recompute()

boolean10 = body14.newObject("PartDesign::Boolean", "Boolean009")
boolean10.Type = "Fuse"
boolean10.addObjects([body8])
doc.recompute()

boolean11 = body14.newObject("PartDesign::Boolean", "Boolean010")
boolean11.Type = "Fuse"
boolean11.addObjects([body11])
doc.recompute()

boolean12 = body14.newObject("PartDesign::Boolean", "Boolean011")
boolean12.Type = "Cut"
boolean12.addObjects([body6])
doc.recompute()

boolean13 = body14.newObject("PartDesign::Boolean", "Boolean012")
boolean13.Type = "Cut"
boolean13.addObjects([body2])
doc.recompute()

fillet = body14.newObject("PartDesign::Fillet", "Fillet")
fillet.Base = (boolean13, edges_at(boolean13, [
    (11.5, 15.5, 124),
    (126.5, 15.5, 124),
    (11.5, 15.5, 54),
    (126.5, 15.5, 54),
    (-5, 11, 54),
    (111.5, 15.5, 114),
    (111.5, 15.5, 54),
    (26.5, 15.5, 114),
    (26.5, 15.5, 54),
    (42.5, 11, 54),
    (95, 11, 54),
    (142.5, 11, 54),
    (-5, 11, -5),
    (42.5, 11, -5),
    (95, 11, -5),
    (142.5, 11, -5),
    (-0.34, 8.5, 49),
    (37.66, 8.5, 49),
    (99.66, 8.5, 49),
    (137.66, 8.5, 49),
    (37.66, 8.5, 0),
    (-0.34, 8.5, 0),
    (137.66, 8.5, 0),
    (99.66, 8.5, 0),
]))
fillet.Radius = 4
doc.recompute()

fillet2 = body14.newObject("PartDesign::Fillet", "Fillet001")
fillet2.Base = (fillet, edges_at(fillet, [
    (18.66, 17, 49),
    (118.66, 17, 49),
    (36.488, 17, 47.828),
    (37.66, 17, 24.5),
    (36.488, 17, 1.172),
    (18.66, 17, 0),
    (0.832, 17, 47.828),
    (0.832, 17, 1.172),
    (-0.34, 17, 24.5),
    (136.488, 17, 47.828),
    (137.66, 17, 24.5),
    (136.488, 17, 1.172),
    (118.66, 17, 0),
    (100.832, 17, 47.828),
    (100.832, 17, 1.172),
    (99.66, 17, 24.5),
]))
fillet2.Radius = 2
doc.recompute()

fillet3 = body14.newObject("PartDesign::Fillet", "Fillet002")
fillet3.Base = (fillet2, edges_at(fillet2, [
    (42.5, 22, 24.5),
    (41.328, 22, -3.828),
    (41.328, 22, 52.828),
    (18.75, 22, -5),
    (34.5, 22, 54),
    (-3.828, 22, -3.828),
    (-5, 22, 24.5),
    (-3.828, 22, 52.828),
    (3.25, 22, 54),
    (10.328, 22, 55.172),
    (27.672, 22, 55.172),
    (10.328, 22, 55.172),
    (103.25, 22, 54),
    (134.5, 22, 54),
    (127.672, 22, 55.172),
    (110.328, 22, 55.172),
    (110.328, 22, 55.172),
    (118.75, 22, -5),
    (96.172, 22, -3.828),
    (141.328, 22, -3.828),
    (95, 22, 24.5),
    (142.5, 22, 24.5),
    (96.172, 22, 52.828),
    (141.328, 22, 52.828),
]))
fillet3.Radius = 3
body15 = doc.addObject("PartDesign::Body", "Body014")
doc.recompute()

body14.Placement = App.Placement(V(-68.75, 0, 205), App.Rotation(V(1, 0, 0), 270))
boolean14 = body15.newObject("PartDesign::Boolean", "Boolean013")
boolean14.Type = "Fuse"
boolean14.addObjects([body14])

doc.recompute()
